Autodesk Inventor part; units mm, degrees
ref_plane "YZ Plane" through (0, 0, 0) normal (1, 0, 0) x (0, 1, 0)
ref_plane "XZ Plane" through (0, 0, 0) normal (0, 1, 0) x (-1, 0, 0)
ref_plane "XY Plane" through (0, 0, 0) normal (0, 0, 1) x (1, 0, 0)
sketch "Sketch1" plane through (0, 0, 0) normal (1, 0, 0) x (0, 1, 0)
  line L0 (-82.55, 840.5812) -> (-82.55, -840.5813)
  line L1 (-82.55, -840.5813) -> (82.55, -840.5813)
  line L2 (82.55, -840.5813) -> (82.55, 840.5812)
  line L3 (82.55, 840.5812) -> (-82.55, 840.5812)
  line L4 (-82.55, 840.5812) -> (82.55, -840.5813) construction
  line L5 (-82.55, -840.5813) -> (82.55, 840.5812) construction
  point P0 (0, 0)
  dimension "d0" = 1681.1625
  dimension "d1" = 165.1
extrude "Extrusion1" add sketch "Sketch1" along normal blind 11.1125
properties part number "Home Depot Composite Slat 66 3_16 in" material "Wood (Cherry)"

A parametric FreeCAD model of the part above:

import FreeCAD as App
import Part
import Sketcher
Q = App.Units.Quantity


def add_polygon(sketch, points):
    """Adds a closed chain of lines whose ends are joined by coincident constraints."""
    first, n = sketch.GeometryCount, len(points)
    for a, b in zip(points, points[1:] + points[:1]):
        sketch.addGeometry(Part.LineSegment(App.Vector(*a, 0), App.Vector(*b, 0)), False)
    for i in range(n):
        sketch.addConstraint(Sketcher.Constraint("Coincident", first + i, 2, first + (i + 1) % n, 1))

doc = App.newDocument("Part")
params = doc.addObject("Spreadsheet::Sheet", "Params")
for row, (alias, value) in enumerate([
    ("sketch1_width", "6.5 in"),
    ("sketch1_height", "66.1875 in"),
    ("pad1_length", "0.4375 in"),
], start=1):
    params.set(f"A{row}", alias)
    params.set(f"B{row}", "=" + value)
    params.setAlias(f"B{row}", alias)

body = doc.addObject("PartDesign::Body", "Body")

# Sketch on YZ plane
sketch1 = body.newObject("Sketcher::SketchObject", "Sketch")
sketch1.AttachmentSupport = (doc.getObject("YZ_Plane"), [""])
sketch1.MapMode = "FlatFace"
add_polygon(sketch1, [(82.55, 840.5812), (-82.55, 840.5812), (-82.55, -840.5813), (82.55, -840.5813)])  # lines 0-3
sketch1.addConstraint([
    Sketcher.Constraint("Horizontal", 0),
    Sketcher.Constraint("Vertical", 1),
    Sketcher.Constraint("Horizontal", 2),
    Sketcher.Constraint("Vertical", 3),
    Sketcher.Constraint("Symmetric", 0, 2, 2, 2, -1, 1),
    Sketcher.Constraint("DistanceX", 0, 2, 0, 1, Q("6.5 in")),
    Sketcher.Constraint("DistanceY", 1, 2, 1, 1, Q("66.1875 in")),
])
sketch1.setExpression("Constraints[9]", "Params.sketch1_width")
sketch1.setExpression("Constraints[10]", "Params.sketch1_height")
pad1 = body.newObject("PartDesign::Pad", "Pad")
pad1.Profile = sketch1
pad1.setExpression("Length", "Params.pad1_length")

doc.recompute()
